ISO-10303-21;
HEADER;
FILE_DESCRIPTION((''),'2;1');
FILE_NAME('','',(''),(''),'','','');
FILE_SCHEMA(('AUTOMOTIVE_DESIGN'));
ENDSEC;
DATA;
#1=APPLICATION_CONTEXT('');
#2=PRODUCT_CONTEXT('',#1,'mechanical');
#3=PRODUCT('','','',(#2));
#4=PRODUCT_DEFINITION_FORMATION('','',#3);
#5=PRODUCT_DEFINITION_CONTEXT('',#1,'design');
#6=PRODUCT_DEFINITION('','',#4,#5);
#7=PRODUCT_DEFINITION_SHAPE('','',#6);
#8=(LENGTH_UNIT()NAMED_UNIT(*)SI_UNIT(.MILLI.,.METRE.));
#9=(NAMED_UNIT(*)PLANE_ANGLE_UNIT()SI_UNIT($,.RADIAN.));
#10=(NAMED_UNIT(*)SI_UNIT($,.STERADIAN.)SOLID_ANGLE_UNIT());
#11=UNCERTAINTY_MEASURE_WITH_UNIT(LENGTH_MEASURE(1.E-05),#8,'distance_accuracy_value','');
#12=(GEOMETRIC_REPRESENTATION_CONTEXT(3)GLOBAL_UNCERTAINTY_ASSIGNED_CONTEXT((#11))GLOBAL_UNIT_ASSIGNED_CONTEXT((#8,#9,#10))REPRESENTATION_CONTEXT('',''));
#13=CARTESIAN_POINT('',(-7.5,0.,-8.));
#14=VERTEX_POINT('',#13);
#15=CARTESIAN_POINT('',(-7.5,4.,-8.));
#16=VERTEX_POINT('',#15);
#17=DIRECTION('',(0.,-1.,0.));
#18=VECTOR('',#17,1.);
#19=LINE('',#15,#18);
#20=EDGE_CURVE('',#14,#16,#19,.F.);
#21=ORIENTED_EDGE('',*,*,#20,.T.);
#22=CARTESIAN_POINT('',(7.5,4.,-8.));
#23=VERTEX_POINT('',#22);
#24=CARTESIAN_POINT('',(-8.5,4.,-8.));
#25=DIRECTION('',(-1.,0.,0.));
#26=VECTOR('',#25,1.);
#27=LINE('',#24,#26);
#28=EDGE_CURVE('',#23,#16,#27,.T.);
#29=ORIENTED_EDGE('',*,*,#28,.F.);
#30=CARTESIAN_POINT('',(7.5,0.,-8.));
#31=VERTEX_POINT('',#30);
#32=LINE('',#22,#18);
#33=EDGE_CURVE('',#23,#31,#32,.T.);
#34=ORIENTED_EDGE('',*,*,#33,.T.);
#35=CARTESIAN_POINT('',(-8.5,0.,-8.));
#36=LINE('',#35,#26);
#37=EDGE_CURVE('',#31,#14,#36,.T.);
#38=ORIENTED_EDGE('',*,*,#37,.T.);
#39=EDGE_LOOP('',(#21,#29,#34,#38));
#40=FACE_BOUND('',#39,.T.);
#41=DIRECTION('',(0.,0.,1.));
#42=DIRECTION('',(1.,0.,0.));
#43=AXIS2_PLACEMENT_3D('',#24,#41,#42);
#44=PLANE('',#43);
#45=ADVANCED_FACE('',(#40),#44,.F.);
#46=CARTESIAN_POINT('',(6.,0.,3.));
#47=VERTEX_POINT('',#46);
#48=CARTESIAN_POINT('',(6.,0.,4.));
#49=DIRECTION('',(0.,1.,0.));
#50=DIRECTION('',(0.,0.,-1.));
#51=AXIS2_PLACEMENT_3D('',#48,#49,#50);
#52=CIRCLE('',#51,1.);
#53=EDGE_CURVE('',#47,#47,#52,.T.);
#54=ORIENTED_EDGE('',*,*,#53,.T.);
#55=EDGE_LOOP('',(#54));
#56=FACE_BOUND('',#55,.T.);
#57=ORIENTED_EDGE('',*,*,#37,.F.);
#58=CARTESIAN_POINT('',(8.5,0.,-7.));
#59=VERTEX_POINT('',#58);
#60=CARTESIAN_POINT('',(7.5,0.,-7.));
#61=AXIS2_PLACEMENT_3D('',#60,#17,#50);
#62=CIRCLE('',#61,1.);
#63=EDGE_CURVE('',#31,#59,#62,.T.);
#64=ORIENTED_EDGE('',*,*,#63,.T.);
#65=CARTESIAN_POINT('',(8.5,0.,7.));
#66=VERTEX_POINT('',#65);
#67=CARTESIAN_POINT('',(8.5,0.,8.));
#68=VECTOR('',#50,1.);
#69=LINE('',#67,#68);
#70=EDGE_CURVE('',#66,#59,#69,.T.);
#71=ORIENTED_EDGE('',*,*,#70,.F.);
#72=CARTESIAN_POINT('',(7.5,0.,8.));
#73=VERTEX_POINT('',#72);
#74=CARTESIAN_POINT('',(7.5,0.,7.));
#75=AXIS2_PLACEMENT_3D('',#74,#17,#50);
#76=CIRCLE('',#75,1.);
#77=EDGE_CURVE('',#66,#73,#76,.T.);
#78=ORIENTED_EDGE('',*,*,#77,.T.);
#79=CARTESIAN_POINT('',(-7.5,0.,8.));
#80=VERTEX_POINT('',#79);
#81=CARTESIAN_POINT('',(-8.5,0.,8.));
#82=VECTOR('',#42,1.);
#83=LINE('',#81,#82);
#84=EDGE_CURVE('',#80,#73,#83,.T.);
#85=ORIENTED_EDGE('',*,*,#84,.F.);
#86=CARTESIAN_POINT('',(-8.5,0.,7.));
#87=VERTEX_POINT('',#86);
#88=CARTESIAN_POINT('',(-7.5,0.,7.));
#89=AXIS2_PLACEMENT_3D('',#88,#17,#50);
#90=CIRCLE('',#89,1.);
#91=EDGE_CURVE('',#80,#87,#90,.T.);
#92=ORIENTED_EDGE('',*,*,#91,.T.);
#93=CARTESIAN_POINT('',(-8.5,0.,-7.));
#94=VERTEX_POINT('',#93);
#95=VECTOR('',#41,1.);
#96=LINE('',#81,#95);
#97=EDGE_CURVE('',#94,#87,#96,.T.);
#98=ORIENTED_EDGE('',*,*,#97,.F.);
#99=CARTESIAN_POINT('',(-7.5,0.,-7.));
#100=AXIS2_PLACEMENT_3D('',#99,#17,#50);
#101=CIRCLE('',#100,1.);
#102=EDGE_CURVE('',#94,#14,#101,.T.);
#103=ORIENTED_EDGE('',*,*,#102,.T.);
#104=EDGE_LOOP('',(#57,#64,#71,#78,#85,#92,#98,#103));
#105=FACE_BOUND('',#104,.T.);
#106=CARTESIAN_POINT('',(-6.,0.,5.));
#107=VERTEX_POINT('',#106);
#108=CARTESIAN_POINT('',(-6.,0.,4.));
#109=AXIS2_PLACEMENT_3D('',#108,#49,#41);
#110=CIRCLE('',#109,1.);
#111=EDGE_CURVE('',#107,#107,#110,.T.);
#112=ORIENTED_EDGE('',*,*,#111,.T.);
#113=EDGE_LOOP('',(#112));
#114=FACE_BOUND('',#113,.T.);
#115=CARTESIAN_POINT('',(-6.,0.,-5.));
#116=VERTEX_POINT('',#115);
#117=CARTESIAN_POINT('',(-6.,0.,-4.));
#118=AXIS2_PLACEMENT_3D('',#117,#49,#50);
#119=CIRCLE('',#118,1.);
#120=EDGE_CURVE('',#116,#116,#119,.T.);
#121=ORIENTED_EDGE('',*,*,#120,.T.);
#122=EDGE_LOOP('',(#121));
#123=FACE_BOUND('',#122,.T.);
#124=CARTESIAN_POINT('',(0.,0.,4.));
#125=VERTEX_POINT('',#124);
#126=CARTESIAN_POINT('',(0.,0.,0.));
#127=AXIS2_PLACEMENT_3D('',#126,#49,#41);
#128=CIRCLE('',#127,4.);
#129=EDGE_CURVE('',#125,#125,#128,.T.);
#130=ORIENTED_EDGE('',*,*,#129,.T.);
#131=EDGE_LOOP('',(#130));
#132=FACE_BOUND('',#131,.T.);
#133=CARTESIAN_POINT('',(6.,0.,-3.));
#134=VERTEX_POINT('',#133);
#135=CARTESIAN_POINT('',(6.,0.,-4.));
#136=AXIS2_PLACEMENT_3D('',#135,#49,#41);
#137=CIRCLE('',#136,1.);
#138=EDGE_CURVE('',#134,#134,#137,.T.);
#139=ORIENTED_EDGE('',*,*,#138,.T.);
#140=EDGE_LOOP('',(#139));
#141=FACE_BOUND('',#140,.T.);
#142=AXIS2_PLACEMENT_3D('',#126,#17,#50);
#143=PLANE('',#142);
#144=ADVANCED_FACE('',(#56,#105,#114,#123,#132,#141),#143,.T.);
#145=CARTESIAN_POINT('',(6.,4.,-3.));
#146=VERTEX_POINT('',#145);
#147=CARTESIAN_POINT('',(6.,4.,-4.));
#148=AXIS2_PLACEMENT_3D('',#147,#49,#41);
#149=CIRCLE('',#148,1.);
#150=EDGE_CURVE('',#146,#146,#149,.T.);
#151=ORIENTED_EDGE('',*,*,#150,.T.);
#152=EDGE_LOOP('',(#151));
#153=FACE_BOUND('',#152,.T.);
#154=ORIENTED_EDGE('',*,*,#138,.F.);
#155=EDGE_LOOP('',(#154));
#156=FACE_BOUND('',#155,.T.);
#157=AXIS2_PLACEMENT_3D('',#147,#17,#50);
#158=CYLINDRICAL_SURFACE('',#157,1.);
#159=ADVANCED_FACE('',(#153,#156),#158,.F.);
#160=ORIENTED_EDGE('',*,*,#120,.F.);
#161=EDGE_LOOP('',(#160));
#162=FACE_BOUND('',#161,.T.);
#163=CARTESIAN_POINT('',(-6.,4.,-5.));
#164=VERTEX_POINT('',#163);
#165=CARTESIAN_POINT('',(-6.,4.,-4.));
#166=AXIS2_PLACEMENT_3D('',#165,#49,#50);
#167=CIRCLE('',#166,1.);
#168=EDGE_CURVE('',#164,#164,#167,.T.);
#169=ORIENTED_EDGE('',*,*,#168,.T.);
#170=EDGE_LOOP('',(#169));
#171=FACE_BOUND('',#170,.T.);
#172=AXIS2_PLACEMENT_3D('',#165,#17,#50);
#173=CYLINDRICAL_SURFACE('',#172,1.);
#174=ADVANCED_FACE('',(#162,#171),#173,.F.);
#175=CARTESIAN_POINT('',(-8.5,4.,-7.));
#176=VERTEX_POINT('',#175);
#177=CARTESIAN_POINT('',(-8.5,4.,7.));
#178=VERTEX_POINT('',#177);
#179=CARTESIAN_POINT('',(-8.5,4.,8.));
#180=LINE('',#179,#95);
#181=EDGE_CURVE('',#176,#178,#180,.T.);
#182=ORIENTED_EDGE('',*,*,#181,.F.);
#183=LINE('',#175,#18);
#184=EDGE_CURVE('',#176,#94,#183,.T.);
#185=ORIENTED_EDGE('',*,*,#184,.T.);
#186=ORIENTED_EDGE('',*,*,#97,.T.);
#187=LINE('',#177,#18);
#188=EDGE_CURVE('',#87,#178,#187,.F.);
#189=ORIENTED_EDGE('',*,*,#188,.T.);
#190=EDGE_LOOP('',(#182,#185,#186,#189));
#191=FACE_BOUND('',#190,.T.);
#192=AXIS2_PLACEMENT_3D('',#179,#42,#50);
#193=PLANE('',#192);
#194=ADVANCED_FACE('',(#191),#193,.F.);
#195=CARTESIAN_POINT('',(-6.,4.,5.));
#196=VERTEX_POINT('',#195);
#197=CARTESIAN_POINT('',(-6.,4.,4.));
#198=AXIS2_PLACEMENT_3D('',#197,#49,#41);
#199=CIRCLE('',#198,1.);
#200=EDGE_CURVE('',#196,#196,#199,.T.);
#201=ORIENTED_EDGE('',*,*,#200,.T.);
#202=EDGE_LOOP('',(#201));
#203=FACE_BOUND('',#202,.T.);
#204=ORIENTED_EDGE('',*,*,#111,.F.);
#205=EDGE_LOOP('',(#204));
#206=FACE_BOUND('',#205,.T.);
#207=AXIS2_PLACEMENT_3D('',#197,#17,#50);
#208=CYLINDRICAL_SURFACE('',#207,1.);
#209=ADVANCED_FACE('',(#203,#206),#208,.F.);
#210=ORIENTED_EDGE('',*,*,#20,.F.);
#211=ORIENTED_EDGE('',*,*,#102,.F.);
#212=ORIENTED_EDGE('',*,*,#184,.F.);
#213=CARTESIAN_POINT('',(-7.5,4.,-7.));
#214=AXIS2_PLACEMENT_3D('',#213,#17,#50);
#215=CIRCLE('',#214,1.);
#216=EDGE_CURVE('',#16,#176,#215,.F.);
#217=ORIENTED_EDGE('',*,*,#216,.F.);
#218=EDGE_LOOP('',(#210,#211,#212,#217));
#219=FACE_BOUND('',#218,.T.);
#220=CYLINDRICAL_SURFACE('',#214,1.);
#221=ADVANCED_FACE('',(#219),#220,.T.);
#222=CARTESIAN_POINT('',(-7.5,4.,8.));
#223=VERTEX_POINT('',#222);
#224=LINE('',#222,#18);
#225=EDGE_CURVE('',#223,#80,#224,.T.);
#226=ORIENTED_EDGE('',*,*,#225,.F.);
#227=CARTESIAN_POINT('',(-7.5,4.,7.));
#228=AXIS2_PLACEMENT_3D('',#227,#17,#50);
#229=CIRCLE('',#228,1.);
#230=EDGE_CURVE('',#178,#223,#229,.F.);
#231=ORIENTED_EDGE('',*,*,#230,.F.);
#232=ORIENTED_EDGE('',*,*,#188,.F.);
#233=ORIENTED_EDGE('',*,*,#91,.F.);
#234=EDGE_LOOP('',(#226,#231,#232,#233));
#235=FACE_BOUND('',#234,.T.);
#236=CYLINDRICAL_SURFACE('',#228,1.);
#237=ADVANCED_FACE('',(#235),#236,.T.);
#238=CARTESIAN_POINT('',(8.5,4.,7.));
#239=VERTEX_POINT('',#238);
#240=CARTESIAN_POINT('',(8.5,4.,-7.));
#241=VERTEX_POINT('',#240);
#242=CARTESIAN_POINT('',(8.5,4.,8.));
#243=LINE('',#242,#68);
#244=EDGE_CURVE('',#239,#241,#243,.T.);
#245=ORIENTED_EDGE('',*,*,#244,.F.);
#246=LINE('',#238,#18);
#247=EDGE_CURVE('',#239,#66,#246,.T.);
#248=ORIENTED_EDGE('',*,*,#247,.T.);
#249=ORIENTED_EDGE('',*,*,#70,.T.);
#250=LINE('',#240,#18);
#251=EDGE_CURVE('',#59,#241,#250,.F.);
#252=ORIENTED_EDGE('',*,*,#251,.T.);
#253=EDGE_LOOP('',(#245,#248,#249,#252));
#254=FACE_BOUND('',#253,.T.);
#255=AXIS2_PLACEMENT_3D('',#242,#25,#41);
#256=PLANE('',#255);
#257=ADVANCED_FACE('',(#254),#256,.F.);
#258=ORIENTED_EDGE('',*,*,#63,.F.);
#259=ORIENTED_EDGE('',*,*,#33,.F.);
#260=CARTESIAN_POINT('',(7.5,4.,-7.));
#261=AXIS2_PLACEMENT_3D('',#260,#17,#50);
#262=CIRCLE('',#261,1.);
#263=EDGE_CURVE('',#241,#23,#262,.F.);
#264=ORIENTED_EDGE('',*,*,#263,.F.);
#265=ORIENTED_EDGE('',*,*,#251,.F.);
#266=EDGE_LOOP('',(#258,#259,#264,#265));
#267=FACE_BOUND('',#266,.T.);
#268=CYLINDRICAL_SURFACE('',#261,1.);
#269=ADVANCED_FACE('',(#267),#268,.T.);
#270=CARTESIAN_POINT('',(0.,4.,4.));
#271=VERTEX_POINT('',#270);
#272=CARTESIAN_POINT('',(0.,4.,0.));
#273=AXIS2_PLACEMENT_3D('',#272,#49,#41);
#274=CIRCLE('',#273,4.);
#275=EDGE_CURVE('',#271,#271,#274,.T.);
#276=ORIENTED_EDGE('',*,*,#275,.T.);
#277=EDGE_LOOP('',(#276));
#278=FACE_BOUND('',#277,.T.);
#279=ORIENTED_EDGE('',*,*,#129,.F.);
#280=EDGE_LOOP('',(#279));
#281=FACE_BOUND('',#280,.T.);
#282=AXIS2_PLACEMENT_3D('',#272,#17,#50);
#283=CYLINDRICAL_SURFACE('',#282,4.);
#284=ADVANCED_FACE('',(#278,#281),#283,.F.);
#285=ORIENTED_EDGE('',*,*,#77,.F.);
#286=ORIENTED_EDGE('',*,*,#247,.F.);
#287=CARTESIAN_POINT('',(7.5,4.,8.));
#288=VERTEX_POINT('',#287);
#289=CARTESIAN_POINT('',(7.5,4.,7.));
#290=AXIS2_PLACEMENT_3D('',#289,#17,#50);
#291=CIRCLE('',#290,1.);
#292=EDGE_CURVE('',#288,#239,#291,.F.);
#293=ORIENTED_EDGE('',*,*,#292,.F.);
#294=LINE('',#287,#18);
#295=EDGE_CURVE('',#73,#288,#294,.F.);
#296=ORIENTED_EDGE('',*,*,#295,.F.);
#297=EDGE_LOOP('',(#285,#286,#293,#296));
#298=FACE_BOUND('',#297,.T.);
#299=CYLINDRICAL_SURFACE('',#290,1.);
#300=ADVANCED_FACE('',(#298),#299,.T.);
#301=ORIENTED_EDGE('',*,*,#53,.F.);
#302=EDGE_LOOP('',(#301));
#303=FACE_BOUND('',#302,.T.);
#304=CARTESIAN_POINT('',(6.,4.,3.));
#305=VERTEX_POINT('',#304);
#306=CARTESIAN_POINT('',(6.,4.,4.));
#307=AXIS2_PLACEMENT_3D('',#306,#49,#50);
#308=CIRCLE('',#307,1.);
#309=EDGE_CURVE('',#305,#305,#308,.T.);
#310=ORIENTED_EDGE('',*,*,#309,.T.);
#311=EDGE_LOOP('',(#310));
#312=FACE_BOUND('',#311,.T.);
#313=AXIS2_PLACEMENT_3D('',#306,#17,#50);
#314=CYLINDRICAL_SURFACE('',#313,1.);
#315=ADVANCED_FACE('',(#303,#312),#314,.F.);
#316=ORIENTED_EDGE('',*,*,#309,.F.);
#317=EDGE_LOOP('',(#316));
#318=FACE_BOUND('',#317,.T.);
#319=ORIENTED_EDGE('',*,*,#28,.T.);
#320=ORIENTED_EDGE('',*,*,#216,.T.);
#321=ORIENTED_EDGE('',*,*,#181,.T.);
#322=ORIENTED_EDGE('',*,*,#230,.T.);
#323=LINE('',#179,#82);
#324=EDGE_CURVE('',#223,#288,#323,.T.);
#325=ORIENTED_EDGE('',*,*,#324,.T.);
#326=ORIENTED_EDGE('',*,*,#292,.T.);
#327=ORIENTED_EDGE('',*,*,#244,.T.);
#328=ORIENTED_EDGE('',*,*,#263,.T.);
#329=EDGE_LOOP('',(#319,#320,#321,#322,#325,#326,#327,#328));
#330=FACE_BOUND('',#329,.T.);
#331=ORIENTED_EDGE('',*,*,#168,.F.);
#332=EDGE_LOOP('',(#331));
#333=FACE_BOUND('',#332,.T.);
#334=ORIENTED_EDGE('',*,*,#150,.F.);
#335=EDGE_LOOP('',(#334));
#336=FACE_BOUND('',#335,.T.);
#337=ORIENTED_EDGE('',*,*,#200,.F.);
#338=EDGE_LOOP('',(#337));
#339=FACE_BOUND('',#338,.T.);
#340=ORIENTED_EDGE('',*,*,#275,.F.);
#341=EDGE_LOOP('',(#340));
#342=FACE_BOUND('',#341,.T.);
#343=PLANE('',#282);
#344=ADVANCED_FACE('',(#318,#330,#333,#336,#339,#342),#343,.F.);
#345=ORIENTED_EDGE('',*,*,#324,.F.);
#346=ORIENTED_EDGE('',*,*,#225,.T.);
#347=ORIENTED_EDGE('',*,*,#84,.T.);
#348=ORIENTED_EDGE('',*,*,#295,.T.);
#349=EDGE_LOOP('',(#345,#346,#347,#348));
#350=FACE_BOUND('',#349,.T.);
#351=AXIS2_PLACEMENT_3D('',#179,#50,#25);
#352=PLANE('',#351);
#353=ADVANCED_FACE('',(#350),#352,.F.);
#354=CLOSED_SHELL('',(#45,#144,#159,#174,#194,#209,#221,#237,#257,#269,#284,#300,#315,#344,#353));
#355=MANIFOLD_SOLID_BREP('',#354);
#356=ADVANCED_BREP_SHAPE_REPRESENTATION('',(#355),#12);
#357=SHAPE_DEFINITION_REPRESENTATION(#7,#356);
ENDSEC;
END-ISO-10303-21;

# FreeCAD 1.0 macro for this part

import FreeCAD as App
import Part
import Sketcher
from FreeCAD import Vector
Q = App.Units.Quantity


def edges_at(feature, points):
    """Names of the edges that pass closest to the given points."""
    edges = feature.Shape.Edges
    near = lambda p: min(range(len(edges)), key=lambda i: edges[i].distToShape(Part.Vertex(*p))[0])
    return sorted({f"Edge{near(p) + 1}" for p in points})


def add_polygon(sketch, points):
    """Adds a closed chain of lines whose ends are joined by coincident constraints."""
    first, n = sketch.GeometryCount, len(points)
    for a, b in zip(points, points[1:] + points[:1]):
        sketch.addGeometry(Part.LineSegment(App.Vector(*a, 0), App.Vector(*b, 0)), False)
    for i in range(n):
        sketch.addConstraint(Sketcher.Constraint("Coincident", first + i, 2, first + (i + 1) % n, 1))

doc = App.newDocument("Part")
body = doc.addObject("PartDesign::Body", "Body")

sketch1 = body.newObject("Sketcher::SketchObject", "Sketch")
sketch1.AttachmentSupport = (doc.getObject("XZ_Plane"), [""])
sketch1.MapMode = "FlatFace"
add_polygon(sketch1, [(-8.5, -8), (-8.5, 8), (8.5, 8), (8.5, -8)])
sketch1.addGeometry(Part.Circle(Vector(-6, 4, 0), Vector(0, 0, 1), 1), False)
sketch1.addGeometry(Part.Circle(Vector(6, 4, 0), Vector(0, 0, 1), 1), False)
sketch1.addGeometry(Part.Circle(Vector(-6, -4, 0), Vector(0, 0, 1), 1), False)
sketch1.addGeometry(Part.Circle(Vector(0, 0, 0), Vector(0, 0, 1), 4), False)
sketch1.addGeometry(Part.Circle(Vector(6, -4, 0), Vector(0, 0, 1), 1), False)
sketch1.addConstraint(Sketcher.Constraint("Vertical", 0))
sketch1.addConstraint(Sketcher.Constraint("Horizontal", 1))
sketch1.addConstraint(Sketcher.Constraint("Vertical", 2))
sketch1.addConstraint(Sketcher.Constraint("Horizontal", 3))
sketch1.addConstraint(Sketcher.Constraint("Coincident", 7, 3, -1, 1))
sketch1.addConstraint(Sketcher.Constraint("Equal", 4, 5))
sketch1.addConstraint(Sketcher.Constraint("Equal", 5, 6))
sketch1.addConstraint(Sketcher.Constraint("Equal", 6, 8))
sketch1.addConstraint(Sketcher.Constraint("Symmetric", 5, 3, 6, 3, -1, 1))
sketch1.addConstraint(Sketcher.Constraint("Symmetric", 4, 3, 8, 3, -1, 1))
sketch1.addConstraint(Sketcher.Constraint("Symmetric", 0, 2, 2, 2, -1, 1))
sketch1.addConstraint(Sketcher.Constraint("Symmetric", 4, 3, 5, 3, -2))
sketch1.addConstraint(Sketcher.Constraint("Diameter", 4, Q("2 mm")))
sketch1.addConstraint(Sketcher.Constraint("Diameter", 7, Q("8 mm")))
sketch1.addConstraint(Sketcher.Constraint("DistanceX", 1, 1, 1, 2, Q("17 mm")))
sketch1.addConstraint(Sketcher.Constraint("DistanceY", 0, 1, 0, 2, Q("16 mm")))
sketch1.addConstraint(Sketcher.Constraint("DistanceX", 4, 3, -1, 1, Q("6 mm")))
sketch1.addConstraint(Sketcher.Constraint("DistanceY", -1, 1, 4, 3, Q("4 mm")))
pad1 = body.newObject("PartDesign::Pad", "Pad")
pad1.Profile = sketch1
pad1.Length = 4
pad1.Reversed = True
doc.recompute()

fillet = body.newObject("PartDesign::Fillet", "Fillet")
fillet.Base = (pad1, edges_at(pad1, [
    (8.5, 2, 8),
    (-8.5, 2, 8),
    (-8.5, 2, -8),
    (8.5, 2, -8),
]))
fillet.Radius = 1

doc.recompute()
